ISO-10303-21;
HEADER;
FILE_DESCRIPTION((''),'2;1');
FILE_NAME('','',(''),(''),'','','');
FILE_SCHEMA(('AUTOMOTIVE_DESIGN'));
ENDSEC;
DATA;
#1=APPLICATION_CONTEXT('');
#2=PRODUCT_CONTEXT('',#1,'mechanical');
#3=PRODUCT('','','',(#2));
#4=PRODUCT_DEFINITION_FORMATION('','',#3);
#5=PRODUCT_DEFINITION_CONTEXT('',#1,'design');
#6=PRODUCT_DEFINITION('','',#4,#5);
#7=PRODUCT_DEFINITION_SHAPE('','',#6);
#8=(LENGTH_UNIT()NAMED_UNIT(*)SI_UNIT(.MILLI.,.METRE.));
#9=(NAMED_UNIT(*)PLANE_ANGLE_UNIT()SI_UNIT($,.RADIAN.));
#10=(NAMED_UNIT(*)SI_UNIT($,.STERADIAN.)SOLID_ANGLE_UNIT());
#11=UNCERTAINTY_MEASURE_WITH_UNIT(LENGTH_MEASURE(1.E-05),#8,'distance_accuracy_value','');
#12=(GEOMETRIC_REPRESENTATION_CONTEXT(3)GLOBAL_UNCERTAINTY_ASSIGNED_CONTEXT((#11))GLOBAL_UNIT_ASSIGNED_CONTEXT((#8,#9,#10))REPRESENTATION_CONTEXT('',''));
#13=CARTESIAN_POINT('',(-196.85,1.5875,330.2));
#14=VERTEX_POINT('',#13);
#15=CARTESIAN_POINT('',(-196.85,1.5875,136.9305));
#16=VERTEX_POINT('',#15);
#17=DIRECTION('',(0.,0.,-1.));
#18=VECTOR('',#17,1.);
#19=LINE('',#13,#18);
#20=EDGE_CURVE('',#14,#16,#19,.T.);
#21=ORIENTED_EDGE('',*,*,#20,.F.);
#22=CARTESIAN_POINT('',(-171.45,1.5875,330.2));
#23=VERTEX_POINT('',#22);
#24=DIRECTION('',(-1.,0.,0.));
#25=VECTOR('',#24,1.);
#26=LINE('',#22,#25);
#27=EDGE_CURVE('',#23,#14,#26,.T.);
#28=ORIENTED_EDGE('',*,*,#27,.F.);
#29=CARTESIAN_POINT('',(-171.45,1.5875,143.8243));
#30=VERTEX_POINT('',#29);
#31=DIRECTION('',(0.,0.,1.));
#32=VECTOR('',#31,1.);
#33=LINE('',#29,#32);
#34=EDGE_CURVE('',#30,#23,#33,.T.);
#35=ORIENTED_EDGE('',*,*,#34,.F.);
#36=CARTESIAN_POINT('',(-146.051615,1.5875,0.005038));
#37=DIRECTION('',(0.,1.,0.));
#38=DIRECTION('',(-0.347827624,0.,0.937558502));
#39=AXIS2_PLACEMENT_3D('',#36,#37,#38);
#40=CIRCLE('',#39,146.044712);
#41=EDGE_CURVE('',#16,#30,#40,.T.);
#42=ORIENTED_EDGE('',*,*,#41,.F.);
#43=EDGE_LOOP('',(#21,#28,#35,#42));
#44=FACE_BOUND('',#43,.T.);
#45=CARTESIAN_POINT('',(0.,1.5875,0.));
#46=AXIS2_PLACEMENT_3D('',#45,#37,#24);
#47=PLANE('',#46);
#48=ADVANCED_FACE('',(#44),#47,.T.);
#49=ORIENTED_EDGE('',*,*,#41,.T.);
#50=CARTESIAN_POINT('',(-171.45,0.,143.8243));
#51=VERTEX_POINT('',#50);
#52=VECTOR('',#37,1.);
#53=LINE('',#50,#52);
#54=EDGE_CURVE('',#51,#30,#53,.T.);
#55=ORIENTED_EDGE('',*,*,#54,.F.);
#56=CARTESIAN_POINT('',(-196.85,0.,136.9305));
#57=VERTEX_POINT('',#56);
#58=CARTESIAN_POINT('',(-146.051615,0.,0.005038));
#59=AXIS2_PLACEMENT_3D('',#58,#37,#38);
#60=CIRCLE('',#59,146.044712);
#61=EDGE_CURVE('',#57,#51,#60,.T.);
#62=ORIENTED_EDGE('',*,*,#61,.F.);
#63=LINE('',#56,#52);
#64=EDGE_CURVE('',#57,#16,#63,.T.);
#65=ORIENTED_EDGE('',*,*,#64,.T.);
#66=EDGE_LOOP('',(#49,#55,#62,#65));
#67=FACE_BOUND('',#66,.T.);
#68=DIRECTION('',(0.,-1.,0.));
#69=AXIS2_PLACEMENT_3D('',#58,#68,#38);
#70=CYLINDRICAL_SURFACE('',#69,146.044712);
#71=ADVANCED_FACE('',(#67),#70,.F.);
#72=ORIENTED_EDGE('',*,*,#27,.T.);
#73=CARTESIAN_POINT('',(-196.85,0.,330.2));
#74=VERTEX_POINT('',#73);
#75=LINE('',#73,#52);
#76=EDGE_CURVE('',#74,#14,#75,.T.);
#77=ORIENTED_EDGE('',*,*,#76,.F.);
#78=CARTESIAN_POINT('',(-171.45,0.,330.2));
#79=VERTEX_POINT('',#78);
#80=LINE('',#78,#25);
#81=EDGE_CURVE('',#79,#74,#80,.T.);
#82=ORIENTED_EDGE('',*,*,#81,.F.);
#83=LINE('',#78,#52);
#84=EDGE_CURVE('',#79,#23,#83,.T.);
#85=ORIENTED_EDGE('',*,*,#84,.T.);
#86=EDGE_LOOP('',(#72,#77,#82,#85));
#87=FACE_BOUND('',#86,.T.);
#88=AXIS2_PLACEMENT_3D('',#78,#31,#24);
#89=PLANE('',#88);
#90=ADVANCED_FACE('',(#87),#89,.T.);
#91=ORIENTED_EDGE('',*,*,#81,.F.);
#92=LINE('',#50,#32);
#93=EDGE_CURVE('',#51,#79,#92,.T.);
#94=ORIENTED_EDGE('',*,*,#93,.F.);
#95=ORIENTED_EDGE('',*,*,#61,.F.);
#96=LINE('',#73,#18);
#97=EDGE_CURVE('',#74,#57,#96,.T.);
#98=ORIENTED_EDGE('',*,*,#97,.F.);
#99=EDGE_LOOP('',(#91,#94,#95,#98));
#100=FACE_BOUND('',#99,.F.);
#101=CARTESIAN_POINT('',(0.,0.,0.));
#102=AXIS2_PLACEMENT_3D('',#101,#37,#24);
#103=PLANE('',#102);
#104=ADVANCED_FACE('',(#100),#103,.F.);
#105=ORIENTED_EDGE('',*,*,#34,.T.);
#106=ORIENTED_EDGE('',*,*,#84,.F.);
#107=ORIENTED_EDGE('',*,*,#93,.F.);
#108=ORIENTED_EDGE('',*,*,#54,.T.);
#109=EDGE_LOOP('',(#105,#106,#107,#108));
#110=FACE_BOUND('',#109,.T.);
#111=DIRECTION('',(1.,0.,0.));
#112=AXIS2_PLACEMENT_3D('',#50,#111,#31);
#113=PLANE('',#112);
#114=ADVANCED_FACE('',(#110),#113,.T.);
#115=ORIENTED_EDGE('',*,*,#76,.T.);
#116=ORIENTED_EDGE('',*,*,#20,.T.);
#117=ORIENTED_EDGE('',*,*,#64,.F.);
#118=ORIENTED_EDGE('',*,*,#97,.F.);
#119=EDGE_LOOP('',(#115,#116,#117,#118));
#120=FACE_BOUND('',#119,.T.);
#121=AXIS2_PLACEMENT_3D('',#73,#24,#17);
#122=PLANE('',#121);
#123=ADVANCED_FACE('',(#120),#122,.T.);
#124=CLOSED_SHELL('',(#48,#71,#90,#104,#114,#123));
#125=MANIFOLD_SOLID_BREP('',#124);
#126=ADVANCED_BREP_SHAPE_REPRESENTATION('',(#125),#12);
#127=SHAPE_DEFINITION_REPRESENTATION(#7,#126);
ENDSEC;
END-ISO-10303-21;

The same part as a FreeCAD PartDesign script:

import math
import FreeCAD as App
import Part
import Sketcher

V = App.Vector
Q = App.Units.Quantity

doc = App.newDocument("Part")
body = doc.addObject("PartDesign::Body", "Body")

sketch1 = doc.addObject("Sketcher::SketchObject", "Sketch")
body.addObject(sketch1)
sketch1.AttachmentSupport = (doc.XZ_Plane, [""])
sketch1.MapMode = "FlatFace"
sketch1.addGeometry([
    Part.LineSegment(V(-171.45, 330.2, 0), V(-171.45, 143.8243, 0)),
    Part.ArcOfCircle(Part.Circle(V(-146.051615, 0.005038, 0), V(0, 0, 1), 146.044712), math.radians(100.015133), math.radians(110.3545)),
    Part.LineSegment(V(-196.85, 136.9305, 0), V(-196.85, 330.2, 0)),
    Part.LineSegment(V(-196.85, 330.2, 0), V(-171.45, 330.2, 0)),
], False)
sketch1.addConstraint([
    Sketcher.Constraint("Coincident", 0, 2, 1, 1),
    Sketcher.Constraint("Coincident", 1, 2, 2, 1),
    Sketcher.Constraint("Coincident", 2, 2, 3, 1),
    Sketcher.Constraint("Coincident", 3, 2, 0, 1),
    Sketcher.Constraint("Vertical", 0),
    Sketcher.Constraint("Vertical", 2),
    Sketcher.Constraint("Horizontal", 3),
    Sketcher.Constraint("DistanceX", 3, 1, 3, 2, Q("1 in")),
    Sketcher.Constraint("DistanceY", -1, 1, 2, 2, Q("13 in")),
    Sketcher.Constraint("DistanceX", 0, 2, -1, 1, Q("6.75 in")),
    Sketcher.Constraint("Radius", 1, Q("5.7498 in")),
    Sketcher.Constraint("DistanceY", 0, 2, 0, 1, Q("186.3757 mm")),
    Sketcher.Constraint("DistanceY", 2, 1, 2, 2, Q("193.2695 mm")),
])
pad1 = doc.addObject("PartDesign::Pad", "Pad")
body.addObject(pad1)
pad1.Profile = sketch1
pad1.Length = Q("0.0625 in")
pad1.Reversed = True

doc.recompute()
